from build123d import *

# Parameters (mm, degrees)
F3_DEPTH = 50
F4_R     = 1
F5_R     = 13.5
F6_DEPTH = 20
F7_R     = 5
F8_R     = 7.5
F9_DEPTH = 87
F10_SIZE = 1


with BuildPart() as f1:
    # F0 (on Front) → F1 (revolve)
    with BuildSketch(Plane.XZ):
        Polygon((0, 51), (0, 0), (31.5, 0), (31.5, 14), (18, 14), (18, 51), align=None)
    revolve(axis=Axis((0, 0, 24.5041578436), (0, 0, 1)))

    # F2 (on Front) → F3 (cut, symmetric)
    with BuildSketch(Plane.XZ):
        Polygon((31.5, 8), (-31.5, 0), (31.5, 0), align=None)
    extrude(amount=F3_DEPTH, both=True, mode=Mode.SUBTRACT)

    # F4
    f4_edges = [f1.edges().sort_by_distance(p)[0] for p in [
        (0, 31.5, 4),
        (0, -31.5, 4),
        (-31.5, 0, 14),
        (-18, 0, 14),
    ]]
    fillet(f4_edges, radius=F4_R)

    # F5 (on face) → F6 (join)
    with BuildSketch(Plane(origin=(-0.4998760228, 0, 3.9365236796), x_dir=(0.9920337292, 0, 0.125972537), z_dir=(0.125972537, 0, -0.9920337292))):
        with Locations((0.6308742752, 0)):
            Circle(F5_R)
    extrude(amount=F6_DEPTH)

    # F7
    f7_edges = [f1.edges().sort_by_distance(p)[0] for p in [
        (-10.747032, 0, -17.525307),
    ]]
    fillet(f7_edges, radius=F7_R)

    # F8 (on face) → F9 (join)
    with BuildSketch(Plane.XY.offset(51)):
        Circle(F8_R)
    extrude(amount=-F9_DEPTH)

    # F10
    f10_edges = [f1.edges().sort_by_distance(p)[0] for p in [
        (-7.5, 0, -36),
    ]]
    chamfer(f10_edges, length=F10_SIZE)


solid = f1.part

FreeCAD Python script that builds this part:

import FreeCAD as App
import Part
import Sketcher

V = App.Vector


def edges_at(feature, points):
    """Names of the edges that pass closest to the given points."""
    edges = feature.Shape.Edges
    near = lambda p: min(range(len(edges)), key=lambda i: edges[i].distToShape(Part.Vertex(*p))[0])
    return sorted({f"Edge{near(p) + 1}" for p in points})


def add_polygon(sketch, points):
    """Adds a closed chain of lines whose ends are joined by coincident constraints."""
    first, n = sketch.GeometryCount, len(points)
    for a, b in zip(points, points[1:] + points[:1]):
        sketch.addGeometry(Part.LineSegment(App.Vector(*a, 0), App.Vector(*b, 0)), False)
    for i in range(n):
        sketch.addConstraint(Sketcher.Constraint("Coincident", first + i, 2, first + (i + 1) % n, 1))

doc = App.newDocument("Part")
params = doc.addObject("Spreadsheet::Sheet", "Params")
for row, (alias, value) in enumerate([
    ("sketch1_width", "18 mm"),
    ("sketch1_height", "51 mm"),
    ("sketch1_height2", "14 mm"),
    ("sketch1_width2", "31.5 mm"),
    ("revolution_angle", "360 deg"),
    ("sketch2_width", "63 mm"),
    ("sketch2_height", "8 mm"),
    ("pocket1_length", "100 mm"),
    ("fillet_radius", "1 mm"),
    ("sketch3_diameter", "27 mm"),
    ("pad1_length", "20 mm"),
    ("fillet2_radius", "5 mm"),
    ("sketch4_diameter", "15 mm"),
    ("pad2_length", "87 mm"),
    ("chamfer_size", "1 mm"),
], start=1):
    params.set(f"A{row}", alias)
    params.set(f"B{row}", "=" + value)
    params.setAlias(f"B{row}", alias)

body = doc.addObject("PartDesign::Body", "Body")

# Sketch on XZ plane
sketch1 = doc.addObject("Sketcher::SketchObject", "Sketch")
body.addObject(sketch1)
sketch1.AttachmentSupport = (doc.XZ_Plane, [""])
sketch1.MapMode = "FlatFace"
add_polygon(sketch1, [(0, 51), (0, 0), (31.5, 0), (31.5, 14), (18, 14), (18, 51)])  # lines 0-5
sketch1.addConstraint([
    Sketcher.Constraint("Vertical", 0),
    Sketcher.Constraint("Horizontal", 1),
    Sketcher.Constraint("Vertical", 2),
    Sketcher.Constraint("Horizontal", 3),
    Sketcher.Constraint("Vertical", 4),
    Sketcher.Constraint("Horizontal", 5),
    Sketcher.Constraint("Coincident", 0, 2, -1, 1),
    Sketcher.Constraint("DistanceX", 5, 2, 5, 1, 18.0),
    Sketcher.Constraint("DistanceY", 0, 2, 0, 1, 51.0),
    Sketcher.Constraint("DistanceY", 2, 1, 2, 2, 14.0),
    Sketcher.Constraint("DistanceX", 1, 1, 1, 2, 31.5),
])
sketch1.setExpression("Constraints[13]", "Params.sketch1_width")
sketch1.setExpression("Constraints[14]", "Params.sketch1_height")
sketch1.setExpression("Constraints[15]", "Params.sketch1_height2")
sketch1.setExpression("Constraints[16]", "Params.sketch1_width2")
revolution = doc.addObject("PartDesign::Revolution", "Revolution")
body.addObject(revolution)
revolution.Profile = sketch1
revolution.ReferenceAxis = (sketch1, ["V_Axis"])
revolution.setExpression("Angle", "Params.revolution_angle")

# Sketch on XZ plane
sketch2 = doc.addObject("Sketcher::SketchObject", "Sketch001")
body.addObject(sketch2)
sketch2.AttachmentSupport = (doc.XZ_Plane, [""])
sketch2.MapMode = "FlatFace"
add_polygon(sketch2, [(31.5, 8), (-31.5, 0), (31.5, 0)])  # lines 0-2
sketch2.addConstraint([
    Sketcher.Constraint("Horizontal", 1),
    Sketcher.Constraint("Vertical", 2),
    Sketcher.Constraint("Symmetric", 0, 2, 1, 2, -1, 1),
    Sketcher.Constraint("DistanceX", 1, 1, 1, 2, 63.0),
    Sketcher.Constraint("DistanceY", 2, 1, 2, 2, 8.0),
])
sketch2.setExpression("Constraints[6]", "Params.sketch2_width")
sketch2.setExpression("Constraints[7]", "Params.sketch2_height")
pocket1 = doc.addObject("PartDesign::Pocket", "Pocket")
body.addObject(pocket1)
pocket1.Profile = sketch2
pocket1.setExpression("Length", "Params.pocket1_length")
pocket1.Midplane = True
doc.recompute()

fillet = doc.addObject("PartDesign::Fillet", "Fillet")
body.addObject(fillet)
fillet.Base = (pocket1, edges_at(pocket1, [
    (0, 31.5, 4),
    (0, -31.5, 4),
    (-31.5, 0, 14),
    (-18, 0, 14),
]))
fillet.setExpression("Radius", "Params.fillet_radius")

# Sketch on an angled plane
sketch3 = doc.addObject("Sketcher::SketchObject", "Sketch002")
body.addObject(sketch3)
sketch3.Placement = App.Placement(V(-0.499876, 0, 3.936524), App.Rotation(V(0.992033729, 0, 0.125972537), V(0, -1, 0), V(0.125972537, 0, -0.992033729), "ZXY"))
sketch3.addGeometry(Part.Circle(V(0.630874, 0, 0), V(0, 0, 1), 13.5), False)
sketch3.addConstraint([
    Sketcher.Constraint("PointOnObject", 0, 3, -1),
    Sketcher.Constraint("Diameter", 0, 27.0),
    Sketcher.Constraint("DistanceX", -1, 1, 0, 3, 0.630874),
])
sketch3.setExpression("Constraints[1]", "Params.sketch3_diameter")
pad1 = doc.addObject("PartDesign::Pad", "Pad")
body.addObject(pad1)
pad1.Profile = sketch3
pad1.setExpression("Length", "Params.pad1_length")
doc.recompute()

fillet2 = doc.addObject("PartDesign::Fillet", "Fillet001")
body.addObject(fillet2)
fillet2.Base = (pad1, edges_at(pad1, [(-10.747, 0, -17.525)]))
fillet2.setExpression("Radius", "Params.fillet2_radius")

# Sketch on XY plane
sketch4 = doc.addObject("Sketcher::SketchObject", "Sketch003")
body.addObject(sketch4)
sketch4.AttachmentSupport = (doc.XY_Plane, [""])
sketch4.MapMode = "FlatFace"
sketch4.AttachmentOffset = App.Placement(V(0, 0, 51), App.Rotation())
sketch4.addGeometry(Part.Circle(V(0, 0, 0), V(0, 0, 1), 7.5), False)
sketch4.addConstraint([
    Sketcher.Constraint("Coincident", 0, 3, -1, 1),
    Sketcher.Constraint("Diameter", 0, 15.0),
])
sketch4.setExpression("Constraints[1]", "Params.sketch4_diameter")
pad2 = doc.addObject("PartDesign::Pad", "Pad001")
body.addObject(pad2)
pad2.Profile = sketch4
pad2.setExpression("Length", "Params.pad2_length")
pad2.Reversed = True
doc.recompute()

chamfer = doc.addObject("PartDesign::Chamfer", "Chamfer")
body.addObject(chamfer)
chamfer.Base = (pad2, edges_at(pad2, [(-7.5, 0, -36)]))
chamfer.setExpression("Size", "Params.chamfer_size")

doc.recompute()
